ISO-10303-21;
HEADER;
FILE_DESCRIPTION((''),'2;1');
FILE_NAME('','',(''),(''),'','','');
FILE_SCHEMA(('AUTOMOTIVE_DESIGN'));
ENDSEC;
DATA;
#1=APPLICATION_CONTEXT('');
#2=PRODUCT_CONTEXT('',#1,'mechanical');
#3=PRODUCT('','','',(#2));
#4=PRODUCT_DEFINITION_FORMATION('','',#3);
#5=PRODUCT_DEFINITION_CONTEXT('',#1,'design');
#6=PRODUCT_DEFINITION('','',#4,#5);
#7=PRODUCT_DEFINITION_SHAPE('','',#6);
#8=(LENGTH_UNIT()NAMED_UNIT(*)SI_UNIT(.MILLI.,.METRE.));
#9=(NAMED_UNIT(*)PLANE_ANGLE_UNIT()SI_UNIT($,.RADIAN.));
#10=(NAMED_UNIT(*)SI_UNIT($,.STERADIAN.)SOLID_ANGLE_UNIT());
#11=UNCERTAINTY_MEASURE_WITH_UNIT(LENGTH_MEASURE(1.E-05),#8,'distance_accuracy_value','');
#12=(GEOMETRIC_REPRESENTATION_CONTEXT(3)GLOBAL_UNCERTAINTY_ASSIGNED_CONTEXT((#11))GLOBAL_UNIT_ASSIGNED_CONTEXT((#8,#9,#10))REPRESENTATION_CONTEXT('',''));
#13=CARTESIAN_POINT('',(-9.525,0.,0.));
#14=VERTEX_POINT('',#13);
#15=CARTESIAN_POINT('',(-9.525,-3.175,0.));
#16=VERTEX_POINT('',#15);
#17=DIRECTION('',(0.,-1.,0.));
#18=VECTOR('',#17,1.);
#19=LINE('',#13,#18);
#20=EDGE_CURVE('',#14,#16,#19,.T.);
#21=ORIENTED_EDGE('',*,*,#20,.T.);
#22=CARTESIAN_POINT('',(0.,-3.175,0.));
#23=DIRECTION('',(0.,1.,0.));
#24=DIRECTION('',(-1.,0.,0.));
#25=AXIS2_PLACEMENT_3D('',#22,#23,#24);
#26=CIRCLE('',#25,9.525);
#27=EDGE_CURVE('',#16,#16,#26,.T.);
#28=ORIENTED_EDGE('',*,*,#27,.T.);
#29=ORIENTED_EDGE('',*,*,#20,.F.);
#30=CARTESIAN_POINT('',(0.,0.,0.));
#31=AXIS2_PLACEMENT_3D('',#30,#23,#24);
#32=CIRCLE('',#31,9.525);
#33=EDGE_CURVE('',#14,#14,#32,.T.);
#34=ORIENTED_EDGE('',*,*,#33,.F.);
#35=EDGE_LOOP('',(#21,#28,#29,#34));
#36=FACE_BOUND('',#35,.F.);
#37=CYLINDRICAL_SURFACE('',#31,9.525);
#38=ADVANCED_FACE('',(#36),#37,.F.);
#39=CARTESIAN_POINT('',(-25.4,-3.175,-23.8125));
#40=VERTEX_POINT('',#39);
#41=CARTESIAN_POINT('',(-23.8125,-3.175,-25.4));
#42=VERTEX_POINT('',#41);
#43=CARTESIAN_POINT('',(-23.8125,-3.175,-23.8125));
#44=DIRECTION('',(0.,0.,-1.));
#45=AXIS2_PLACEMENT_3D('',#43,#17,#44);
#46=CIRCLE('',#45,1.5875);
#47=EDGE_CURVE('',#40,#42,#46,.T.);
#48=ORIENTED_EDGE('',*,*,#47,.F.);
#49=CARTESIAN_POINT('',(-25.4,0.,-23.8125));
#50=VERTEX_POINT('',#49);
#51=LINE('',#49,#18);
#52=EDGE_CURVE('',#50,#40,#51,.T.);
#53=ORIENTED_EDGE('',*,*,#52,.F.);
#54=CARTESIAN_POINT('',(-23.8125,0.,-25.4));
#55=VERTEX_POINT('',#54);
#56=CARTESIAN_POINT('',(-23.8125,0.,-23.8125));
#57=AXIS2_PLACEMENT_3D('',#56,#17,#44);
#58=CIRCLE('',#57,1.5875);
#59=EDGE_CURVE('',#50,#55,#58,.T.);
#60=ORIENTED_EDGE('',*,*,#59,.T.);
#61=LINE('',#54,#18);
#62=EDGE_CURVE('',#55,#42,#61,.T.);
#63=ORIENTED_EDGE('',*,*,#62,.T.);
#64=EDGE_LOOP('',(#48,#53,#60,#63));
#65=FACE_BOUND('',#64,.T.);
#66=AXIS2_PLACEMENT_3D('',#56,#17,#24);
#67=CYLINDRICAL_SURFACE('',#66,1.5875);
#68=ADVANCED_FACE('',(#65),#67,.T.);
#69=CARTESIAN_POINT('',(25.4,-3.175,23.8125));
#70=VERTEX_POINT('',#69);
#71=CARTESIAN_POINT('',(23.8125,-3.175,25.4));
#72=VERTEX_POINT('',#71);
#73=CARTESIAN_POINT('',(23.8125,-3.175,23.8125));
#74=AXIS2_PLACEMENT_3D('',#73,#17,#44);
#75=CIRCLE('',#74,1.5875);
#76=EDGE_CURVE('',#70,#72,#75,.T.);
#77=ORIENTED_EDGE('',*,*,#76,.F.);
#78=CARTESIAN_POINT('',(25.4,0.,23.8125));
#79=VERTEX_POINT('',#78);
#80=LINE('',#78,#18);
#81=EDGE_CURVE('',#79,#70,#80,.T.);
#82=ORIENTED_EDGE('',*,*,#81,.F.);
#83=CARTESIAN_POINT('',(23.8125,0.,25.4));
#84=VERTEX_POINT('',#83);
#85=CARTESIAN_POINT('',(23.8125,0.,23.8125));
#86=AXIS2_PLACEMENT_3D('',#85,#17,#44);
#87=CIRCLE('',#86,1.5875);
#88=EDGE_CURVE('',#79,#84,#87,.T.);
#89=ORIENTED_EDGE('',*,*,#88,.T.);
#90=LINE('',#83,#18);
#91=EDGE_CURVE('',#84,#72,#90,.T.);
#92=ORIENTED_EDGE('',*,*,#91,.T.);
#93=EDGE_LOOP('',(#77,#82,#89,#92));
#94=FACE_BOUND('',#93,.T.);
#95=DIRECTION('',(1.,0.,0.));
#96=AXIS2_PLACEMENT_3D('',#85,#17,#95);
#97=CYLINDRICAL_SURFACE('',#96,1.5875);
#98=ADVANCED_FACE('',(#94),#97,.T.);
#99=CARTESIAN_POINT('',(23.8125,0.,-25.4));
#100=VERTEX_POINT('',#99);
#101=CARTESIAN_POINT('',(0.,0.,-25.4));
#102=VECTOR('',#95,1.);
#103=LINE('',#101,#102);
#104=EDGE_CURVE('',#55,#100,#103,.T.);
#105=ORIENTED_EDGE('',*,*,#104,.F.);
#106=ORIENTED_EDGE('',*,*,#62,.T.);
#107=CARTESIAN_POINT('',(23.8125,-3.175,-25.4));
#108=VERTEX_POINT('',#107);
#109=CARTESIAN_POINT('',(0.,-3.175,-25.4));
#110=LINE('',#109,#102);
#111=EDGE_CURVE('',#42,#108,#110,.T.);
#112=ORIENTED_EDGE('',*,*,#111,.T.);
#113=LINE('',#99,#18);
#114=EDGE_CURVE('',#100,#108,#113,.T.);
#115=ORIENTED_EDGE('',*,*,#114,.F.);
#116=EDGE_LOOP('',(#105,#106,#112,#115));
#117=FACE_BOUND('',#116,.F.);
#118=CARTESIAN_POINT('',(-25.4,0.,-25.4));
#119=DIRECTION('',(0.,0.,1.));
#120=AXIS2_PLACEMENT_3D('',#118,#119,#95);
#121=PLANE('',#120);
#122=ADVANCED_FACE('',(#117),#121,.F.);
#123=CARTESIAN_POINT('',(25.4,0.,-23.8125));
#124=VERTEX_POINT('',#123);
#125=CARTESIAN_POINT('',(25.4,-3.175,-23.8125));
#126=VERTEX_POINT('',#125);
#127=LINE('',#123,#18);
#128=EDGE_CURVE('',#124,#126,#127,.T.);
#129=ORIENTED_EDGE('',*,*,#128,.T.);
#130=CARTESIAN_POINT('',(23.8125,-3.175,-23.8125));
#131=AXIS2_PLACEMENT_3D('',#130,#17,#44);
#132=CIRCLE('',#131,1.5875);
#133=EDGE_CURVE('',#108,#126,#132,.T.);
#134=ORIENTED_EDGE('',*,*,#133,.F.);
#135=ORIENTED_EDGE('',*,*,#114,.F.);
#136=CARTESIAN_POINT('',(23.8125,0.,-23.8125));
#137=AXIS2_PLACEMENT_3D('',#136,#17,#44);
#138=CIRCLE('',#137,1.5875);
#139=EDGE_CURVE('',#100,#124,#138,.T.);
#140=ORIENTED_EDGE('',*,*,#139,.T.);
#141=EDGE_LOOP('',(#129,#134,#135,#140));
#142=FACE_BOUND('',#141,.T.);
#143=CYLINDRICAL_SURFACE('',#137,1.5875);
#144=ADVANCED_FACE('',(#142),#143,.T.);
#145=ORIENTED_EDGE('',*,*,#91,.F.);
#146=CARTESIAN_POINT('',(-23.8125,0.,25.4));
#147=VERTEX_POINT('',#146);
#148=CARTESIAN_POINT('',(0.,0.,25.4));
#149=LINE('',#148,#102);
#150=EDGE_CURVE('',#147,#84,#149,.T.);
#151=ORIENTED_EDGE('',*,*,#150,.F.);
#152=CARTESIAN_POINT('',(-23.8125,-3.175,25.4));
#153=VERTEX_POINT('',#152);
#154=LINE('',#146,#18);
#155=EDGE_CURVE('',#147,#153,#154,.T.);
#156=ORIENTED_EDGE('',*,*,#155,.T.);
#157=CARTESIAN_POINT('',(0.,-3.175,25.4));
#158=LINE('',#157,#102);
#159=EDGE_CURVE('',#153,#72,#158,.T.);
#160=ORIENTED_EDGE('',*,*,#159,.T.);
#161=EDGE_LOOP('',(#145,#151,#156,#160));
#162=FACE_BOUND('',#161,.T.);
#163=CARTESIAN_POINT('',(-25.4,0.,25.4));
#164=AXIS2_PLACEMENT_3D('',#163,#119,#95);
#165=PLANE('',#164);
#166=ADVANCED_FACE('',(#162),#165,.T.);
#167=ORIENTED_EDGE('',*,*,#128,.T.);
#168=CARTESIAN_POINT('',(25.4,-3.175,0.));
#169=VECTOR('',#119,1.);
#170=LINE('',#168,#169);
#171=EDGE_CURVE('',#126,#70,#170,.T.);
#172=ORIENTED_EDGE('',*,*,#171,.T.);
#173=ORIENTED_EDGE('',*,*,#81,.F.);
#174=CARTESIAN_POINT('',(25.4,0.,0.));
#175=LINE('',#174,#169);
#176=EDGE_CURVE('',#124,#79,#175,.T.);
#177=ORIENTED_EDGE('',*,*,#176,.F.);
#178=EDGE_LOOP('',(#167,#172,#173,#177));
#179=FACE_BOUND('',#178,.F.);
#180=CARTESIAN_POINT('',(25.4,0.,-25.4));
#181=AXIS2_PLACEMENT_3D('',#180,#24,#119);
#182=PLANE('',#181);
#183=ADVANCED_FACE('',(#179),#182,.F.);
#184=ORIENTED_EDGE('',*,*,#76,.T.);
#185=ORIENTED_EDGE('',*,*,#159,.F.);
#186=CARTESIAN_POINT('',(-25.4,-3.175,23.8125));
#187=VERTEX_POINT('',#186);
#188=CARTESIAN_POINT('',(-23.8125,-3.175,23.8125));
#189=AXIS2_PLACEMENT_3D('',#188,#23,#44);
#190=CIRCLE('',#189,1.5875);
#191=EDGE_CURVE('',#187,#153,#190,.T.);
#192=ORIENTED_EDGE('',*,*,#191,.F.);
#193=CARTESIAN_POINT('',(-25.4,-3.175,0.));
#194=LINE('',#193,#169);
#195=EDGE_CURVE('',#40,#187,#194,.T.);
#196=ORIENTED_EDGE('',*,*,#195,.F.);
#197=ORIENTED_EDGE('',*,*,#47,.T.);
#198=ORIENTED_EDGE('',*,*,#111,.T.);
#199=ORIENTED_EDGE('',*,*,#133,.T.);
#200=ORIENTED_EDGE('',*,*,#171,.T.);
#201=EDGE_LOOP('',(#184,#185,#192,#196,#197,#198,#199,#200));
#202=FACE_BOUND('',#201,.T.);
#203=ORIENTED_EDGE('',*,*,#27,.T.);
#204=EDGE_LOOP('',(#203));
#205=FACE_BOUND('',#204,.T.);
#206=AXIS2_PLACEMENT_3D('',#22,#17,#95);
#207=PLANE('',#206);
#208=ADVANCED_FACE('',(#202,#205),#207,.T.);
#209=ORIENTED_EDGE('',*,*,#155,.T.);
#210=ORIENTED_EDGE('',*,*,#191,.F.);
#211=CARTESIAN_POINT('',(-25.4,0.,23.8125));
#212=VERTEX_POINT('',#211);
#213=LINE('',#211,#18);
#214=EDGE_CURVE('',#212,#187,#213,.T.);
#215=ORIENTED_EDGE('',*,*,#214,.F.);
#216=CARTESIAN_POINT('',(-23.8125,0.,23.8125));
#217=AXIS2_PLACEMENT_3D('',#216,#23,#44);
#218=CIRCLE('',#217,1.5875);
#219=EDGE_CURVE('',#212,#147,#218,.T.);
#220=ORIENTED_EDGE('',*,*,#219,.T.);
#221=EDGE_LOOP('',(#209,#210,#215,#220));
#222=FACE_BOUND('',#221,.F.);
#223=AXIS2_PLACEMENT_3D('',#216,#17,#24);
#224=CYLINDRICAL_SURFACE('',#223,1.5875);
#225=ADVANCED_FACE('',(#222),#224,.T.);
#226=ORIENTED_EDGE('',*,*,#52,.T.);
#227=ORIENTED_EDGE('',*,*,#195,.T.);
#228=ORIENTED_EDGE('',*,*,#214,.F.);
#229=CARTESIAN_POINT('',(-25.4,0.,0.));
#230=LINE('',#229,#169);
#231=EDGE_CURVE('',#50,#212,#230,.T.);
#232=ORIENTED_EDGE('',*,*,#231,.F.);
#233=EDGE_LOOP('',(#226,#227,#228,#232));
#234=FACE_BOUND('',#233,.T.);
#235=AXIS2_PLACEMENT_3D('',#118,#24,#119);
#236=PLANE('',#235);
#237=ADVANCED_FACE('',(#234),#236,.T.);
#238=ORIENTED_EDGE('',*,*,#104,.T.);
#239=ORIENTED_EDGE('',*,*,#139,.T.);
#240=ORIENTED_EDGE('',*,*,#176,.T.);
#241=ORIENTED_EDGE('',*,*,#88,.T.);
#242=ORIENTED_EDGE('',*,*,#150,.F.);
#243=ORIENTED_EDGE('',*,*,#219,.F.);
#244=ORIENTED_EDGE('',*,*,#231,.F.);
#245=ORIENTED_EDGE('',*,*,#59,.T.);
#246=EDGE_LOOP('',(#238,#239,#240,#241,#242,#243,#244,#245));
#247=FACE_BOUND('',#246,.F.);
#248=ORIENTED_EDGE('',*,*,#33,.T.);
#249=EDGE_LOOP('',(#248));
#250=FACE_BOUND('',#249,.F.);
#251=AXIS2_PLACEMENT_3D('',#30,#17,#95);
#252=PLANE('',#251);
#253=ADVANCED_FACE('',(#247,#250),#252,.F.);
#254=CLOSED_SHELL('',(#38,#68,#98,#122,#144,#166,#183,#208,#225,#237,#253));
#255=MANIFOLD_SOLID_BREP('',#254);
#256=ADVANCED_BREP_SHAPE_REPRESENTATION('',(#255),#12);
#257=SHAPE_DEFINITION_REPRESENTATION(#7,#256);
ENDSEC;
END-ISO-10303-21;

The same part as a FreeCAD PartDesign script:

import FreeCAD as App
import Part
import Sketcher
Q = App.Units.Quantity


def edges_at(feature, points):
    """Names of the edges that pass closest to the given points."""
    edges = feature.Shape.Edges
    near = lambda p: min(range(len(edges)), key=lambda i: edges[i].distToShape(Part.Vertex(*p))[0])
    return sorted({f"Edge{near(p) + 1}" for p in points})

doc = App.newDocument("Part")
body = doc.addObject("PartDesign::Body", "Body")

# Sketch on XZ plane
sketch1 = doc.addObject("Sketcher::SketchObject", "Sketch")
body.addObject(sketch1)
sketch1.AttachmentSupport = (doc.XZ_Plane, [""])
sketch1.MapMode = "FlatFace"
sketch1.addGeometry([
    Part.LineSegment(App.Vector(-25.4, 25.4, 0), App.Vector(-25.4, -25.4, 0)),
    Part.LineSegment(App.Vector(-25.4, -25.4, 0), App.Vector(25.4, -25.4, 0)),
    Part.LineSegment(App.Vector(25.4, -25.4, 0), App.Vector(25.4, 25.4, 0)),
    Part.LineSegment(App.Vector(25.4, 25.4, 0), App.Vector(-25.4, 25.4, 0)),
], False)
sketch1.addConstraint([
    Sketcher.Constraint("Coincident", 0, 2, 1, 1),
    Sketcher.Constraint("Coincident", 1, 2, 2, 1),
    Sketcher.Constraint("Coincident", 2, 2, 3, 1),
    Sketcher.Constraint("Coincident", 3, 2, 0, 1),
    Sketcher.Constraint("Vertical", 0),
    Sketcher.Constraint("Horizontal", 1),
    Sketcher.Constraint("Vertical", 2),
    Sketcher.Constraint("Horizontal", 3),
    Sketcher.Constraint("Symmetric", 0, 2, 2, 2, -1, 1),
    Sketcher.Constraint("Equal", 3, 0),
    Sketcher.Constraint("DistanceX", 1, 1, 1, 2, Q("2 in")),
])
pad1 = doc.addObject("PartDesign::Pad", "Pad")
body.addObject(pad1)
pad1.Profile = sketch1
pad1.Length = Q("0.125 in")
doc.recompute()

fillet = doc.addObject("PartDesign::Fillet", "Fillet")
body.addObject(fillet)
fillet.Base = (pad1, edges_at(pad1, [
    (25.4, -1.587, 25.4),
    (-25.4, -1.587, 25.4),
    (-25.4, -1.587, -25.4),
    (25.4, -1.587, -25.4),
]))
fillet.Radius = Q("0.0625 in")

# Sketch on XZ plane
sketch2 = doc.addObject("Sketcher::SketchObject", "Sketch001")
body.addObject(sketch2)
sketch2.AttachmentSupport = (doc.XZ_Plane, [""])
sketch2.MapMode = "FlatFace"
sketch2.addGeometry(Part.Circle(App.Vector(0, 0, 0), App.Vector(0, 0, 1), 9.525), False)
sketch2.addConstraint([
    Sketcher.Constraint("Coincident", 0, 3, -1, 1),
    Sketcher.Constraint("Diameter", 0, Q("0.75 in")),
])
pocket1 = doc.addObject("PartDesign::Pocket", "Pocket")
body.addObject(pocket1)
pocket1.Profile = sketch2
pocket1.Type = "ThroughAll"
pocket1.Reversed = True

doc.recompute()
